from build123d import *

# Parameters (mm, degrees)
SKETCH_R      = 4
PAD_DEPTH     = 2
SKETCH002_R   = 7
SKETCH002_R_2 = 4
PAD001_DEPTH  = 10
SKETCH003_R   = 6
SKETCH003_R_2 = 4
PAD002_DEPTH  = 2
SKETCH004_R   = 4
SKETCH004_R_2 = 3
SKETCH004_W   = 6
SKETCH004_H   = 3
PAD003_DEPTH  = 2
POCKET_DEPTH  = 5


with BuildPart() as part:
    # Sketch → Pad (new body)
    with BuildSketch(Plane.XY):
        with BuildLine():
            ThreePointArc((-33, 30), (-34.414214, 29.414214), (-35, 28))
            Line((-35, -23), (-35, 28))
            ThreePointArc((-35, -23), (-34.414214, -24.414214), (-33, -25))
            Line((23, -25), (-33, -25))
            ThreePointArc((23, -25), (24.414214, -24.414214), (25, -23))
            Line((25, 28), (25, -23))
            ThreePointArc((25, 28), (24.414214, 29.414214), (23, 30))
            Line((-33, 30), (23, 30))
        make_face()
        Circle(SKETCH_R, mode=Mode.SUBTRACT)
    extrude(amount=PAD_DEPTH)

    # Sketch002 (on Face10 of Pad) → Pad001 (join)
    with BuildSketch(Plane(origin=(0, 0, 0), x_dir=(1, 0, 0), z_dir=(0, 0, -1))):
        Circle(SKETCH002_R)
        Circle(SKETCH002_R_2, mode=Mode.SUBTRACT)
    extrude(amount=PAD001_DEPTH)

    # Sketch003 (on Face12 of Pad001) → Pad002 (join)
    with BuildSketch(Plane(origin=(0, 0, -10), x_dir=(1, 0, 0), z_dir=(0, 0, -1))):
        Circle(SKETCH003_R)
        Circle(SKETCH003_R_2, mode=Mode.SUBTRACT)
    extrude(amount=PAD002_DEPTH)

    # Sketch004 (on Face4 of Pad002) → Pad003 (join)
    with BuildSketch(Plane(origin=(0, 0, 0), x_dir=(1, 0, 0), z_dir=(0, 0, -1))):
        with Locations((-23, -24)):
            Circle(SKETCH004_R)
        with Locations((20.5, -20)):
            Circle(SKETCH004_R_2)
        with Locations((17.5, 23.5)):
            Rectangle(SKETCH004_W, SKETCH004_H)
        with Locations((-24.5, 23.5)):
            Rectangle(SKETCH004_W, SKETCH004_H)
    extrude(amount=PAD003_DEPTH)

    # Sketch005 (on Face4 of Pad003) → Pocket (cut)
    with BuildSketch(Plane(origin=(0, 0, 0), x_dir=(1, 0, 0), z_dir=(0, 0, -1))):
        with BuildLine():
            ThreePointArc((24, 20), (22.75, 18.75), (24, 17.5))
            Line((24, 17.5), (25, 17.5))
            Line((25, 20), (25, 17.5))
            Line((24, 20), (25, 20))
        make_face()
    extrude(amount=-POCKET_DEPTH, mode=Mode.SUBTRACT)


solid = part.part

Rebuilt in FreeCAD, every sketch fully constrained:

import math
import FreeCAD as App
import Part
import Sketcher

V = App.Vector
Q = App.Units.Quantity

doc = App.newDocument("Part")
body = doc.addObject("PartDesign::Body", "Body")

sketch1 = body.newObject("Sketcher::SketchObject", "Sketch")
sketch1.AttachmentSupport = (doc.getObject("XY_Plane"), [""])
sketch1.MapMode = "FlatFace"
sketch1.addGeometry([
    Part.ArcOfCircle(Part.Circle(V(-33, 28, 0), V(0, 0, 1), 2), math.radians(90), math.radians(180)),
    Part.LineSegment(V(-35, 28, 0), V(-35, -23, 0)),
    Part.ArcOfCircle(Part.Circle(V(-33, -23, 0), V(0, 0, 1), 2), math.radians(180), math.radians(270)),
    Part.LineSegment(V(-33, -25, 0), V(23, -25, 0)),
    Part.ArcOfCircle(Part.Circle(V(23, -23, 0), V(0, 0, 1), 2), math.radians(-90), math.radians(0)),
    Part.LineSegment(V(25, -23, 0), V(25, 28, 0)),
    Part.ArcOfCircle(Part.Circle(V(23, 28, 0), V(0, 0, 1), 2), math.radians(0), math.radians(90)),
    Part.LineSegment(V(23, 30, 0), V(-33, 30, 0)),
    Part.Circle(V(0, 0, 0), V(0, 0, 1), 4),
], False)
sketch1.addConstraint([
    Sketcher.Constraint("Tangent", 0, 2, 1, 1),
    Sketcher.Constraint("Tangent", 1, 2, 2, 1),
    Sketcher.Constraint("Tangent", 2, 2, 3, 1),
    Sketcher.Constraint("Tangent", 3, 2, 4, 1),
    Sketcher.Constraint("Tangent", 4, 2, 5, 1),
    Sketcher.Constraint("Tangent", 5, 2, 6, 1),
    Sketcher.Constraint("Tangent", 6, 2, 7, 1),
    Sketcher.Constraint("Tangent", 7, 2, 0, 1),
    Sketcher.Constraint("Vertical", 1),
    Sketcher.Constraint("Horizontal", 3),
    Sketcher.Constraint("Vertical", 5),
    Sketcher.Constraint("Horizontal", 7),
    Sketcher.Constraint("Coincident", 8, 3, -1, 1),
    Sketcher.Constraint("Equal", 0, 2),
    Sketcher.Constraint("Equal", 2, 4),
    Sketcher.Constraint("Equal", 4, 6),
    Sketcher.Constraint("Diameter", 8, Q("8 mm")),
    Sketcher.Constraint("Radius", 0, Q("1.999999 mm")),
    Sketcher.Constraint("DistanceX", 3, 1, 3, 2, Q("56 mm")),
    Sketcher.Constraint("DistanceY", 1, 2, 1, 1, Q("51 mm")),
    Sketcher.Constraint("DistanceX", 0, 3, -1, 1, Q("33.000001 mm")),
    Sketcher.Constraint("DistanceY", -1, 1, 0, 3, Q("28.000001 mm")),
])
pad1 = body.newObject("PartDesign::Pad", "Pad")
pad1.Profile = sketch1
pad1.Length = 2

sketch2 = body.newObject("Sketcher::SketchObject", "Sketch001")
sketch2.AttachmentSupport = (doc.getObject("XY_Plane"), [""])
sketch2.MapMode = "FlatFace"
sketch2.addGeometry([
    Part.Circle(V(0, 0, 0), V(0, 0, 1), 7),
    Part.Circle(V(0, 0, 0), V(0, 0, 1), 4),
], False)
sketch2.addConstraint([
    Sketcher.Constraint("Coincident", 0, 3, -1, 1),
    Sketcher.Constraint("Coincident", 1, 3, -1, 1),
    Sketcher.Constraint("Diameter", 0, Q("14 mm")),
    Sketcher.Constraint("Diameter", 1, Q("8 mm")),
])
pad2 = body.newObject("PartDesign::Pad", "Pad001")
pad2.Profile = sketch2
pad2.Length = 10
pad2.Reversed = True

sketch3 = body.newObject("Sketcher::SketchObject", "Sketch002")
sketch3.AttachmentSupport = (doc.getObject("XY_Plane"), [""])
sketch3.MapMode = "FlatFace"
sketch3.AttachmentOffset = App.Placement(V(0, 0, -10), App.Rotation())
sketch3.addGeometry([
    Part.Circle(V(0, 0, 0), V(0, 0, 1), 6),
    Part.Circle(V(0, 0, 0), V(0, 0, 1), 4),
], False)
sketch3.addConstraint([
    Sketcher.Constraint("Coincident", 0, 3, -1, 1),
    Sketcher.Constraint("Coincident", 1, 3, -1, 1),
    Sketcher.Constraint("Diameter", 0, Q("12 mm")),
    Sketcher.Constraint("Diameter", 1, Q("8 mm")),
])
pad3 = body.newObject("PartDesign::Pad", "Pad002")
pad3.Profile = sketch3
pad3.Length = 2
pad3.Reversed = True

sketch4 = body.newObject("Sketcher::SketchObject", "Sketch003")
sketch4.AttachmentSupport = (doc.getObject("XY_Plane"), [""])
sketch4.MapMode = "FlatFace"
sketch4.addGeometry([
    Part.Circle(V(-23, 24, 0), V(0, 0, 1), 4),
    Part.Circle(V(20.5, 20, 0), V(0, 0, 1), 3),
    Part.LineSegment(V(14.5, -25, 0), V(14.5, -22, 0)),
    Part.LineSegment(V(14.5, -22, 0), V(20.5, -22, 0)),
    Part.LineSegment(V(20.5, -22, 0), V(20.5, -25, 0)),
    Part.LineSegment(V(20.5, -25, 0), V(14.5, -25, 0)),
    Part.LineSegment(V(-27.5, -25, 0), V(-27.5, -22, 0)),
    Part.LineSegment(V(-27.5, -22, 0), V(-21.5, -22, 0)),
    Part.LineSegment(V(-21.5, -22, 0), V(-21.5, -25, 0)),
    Part.LineSegment(V(-21.5, -25, 0), V(-27.5, -25, 0)),
], False)
sketch4.addConstraint([
    Sketcher.Constraint("Coincident", 2, 2, 3, 1),
    Sketcher.Constraint("Coincident", 3, 2, 4, 1),
    Sketcher.Constraint("Coincident", 4, 2, 5, 1),
    Sketcher.Constraint("Coincident", 5, 2, 2, 1),
    Sketcher.Constraint("Coincident", 6, 2, 7, 1),
    Sketcher.Constraint("Coincident", 7, 2, 8, 1),
    Sketcher.Constraint("Coincident", 8, 2, 9, 1),
    Sketcher.Constraint("Coincident", 9, 2, 6, 1),
    Sketcher.Constraint("Vertical", 2),
    Sketcher.Constraint("Horizontal", 3),
    Sketcher.Constraint("Vertical", 4),
    Sketcher.Constraint("Horizontal", 5),
    Sketcher.Constraint("Vertical", 6),
    Sketcher.Constraint("Horizontal", 7),
    Sketcher.Constraint("Vertical", 8),
    Sketcher.Constraint("Horizontal", 9),
    Sketcher.Constraint("Horizontal", 3, 2, 6, 2),
    Sketcher.Constraint("Horizontal", 5, 2, 8, 2),
    Sketcher.Constraint("Vertical", 1, 3, 3, 2),
    Sketcher.Constraint("Equal", 5, 7),
    Sketcher.Constraint("Diameter", 0, Q("8 mm")),
    Sketcher.Constraint("Diameter", 1, Q("6 mm")),
    Sketcher.Constraint("DistanceX", 3, 1, 3, 2, Q("6 mm")),
    Sketcher.Constraint("DistanceY", 2, 1, 2, 2, Q("3 mm")),
    Sketcher.Constraint("DistanceX", 0, 3, -1, 1, Q("23 mm")),
    Sketcher.Constraint("DistanceY", -1, 1, 0, 3, Q("24 mm")),
    Sketcher.Constraint("DistanceY", -1, 1, 1, 3, Q("20 mm")),
    Sketcher.Constraint("DistanceY", 2, 2, -1, 1, Q("22 mm")),
    Sketcher.Constraint("DistanceX", 6, 2, 2, 2, Q("42 mm")),
    Sketcher.Constraint("DistanceX", -1, 1, 1, 3, Q("20.5 mm")),
])
pad4 = body.newObject("PartDesign::Pad", "Pad003")
pad4.Profile = sketch4
pad4.Length = 2
pad4.Reversed = True

sketch5 = body.newObject("Sketcher::SketchObject", "Sketch004")
sketch5.AttachmentSupport = (doc.getObject("XY_Plane"), [""])
sketch5.MapMode = "FlatFace"
sketch5.addGeometry([
    Part.ArcOfCircle(Part.Circle(V(24, -18.8, 0), V(0, 0, 1), 1.2), math.radians(90), math.radians(270)),
    Part.LineSegment(V(24, -17.5, 0), V(25, -17.5, 0)),
    Part.LineSegment(V(25, -17.5, 0), V(25, -20, 0)),
    Part.LineSegment(V(25, -20, 0), V(24, -20, 0)),
], False)
sketch5.addConstraint([
    Sketcher.Constraint("Tangent", 0, 1, 1, 1),
    Sketcher.Constraint("Coincident", 1, 2, 2, 1),
    Sketcher.Constraint("Coincident", 2, 2, 3, 1),
    Sketcher.Constraint("Tangent", 3, 2, 0, 2),
    Sketcher.Constraint("Horizontal", 1),
    Sketcher.Constraint("Vertical", 2),
    Sketcher.Constraint("Horizontal", 3),
    Sketcher.Constraint("DistanceX", 1, 1, 1, 2, Q("1 mm")),
    Sketcher.Constraint("Radius", 0, Q("1.25 mm")),
    Sketcher.Constraint("DistanceX", -1, 1, 0, 3, Q("24 mm")),
    Sketcher.Constraint("DistanceY", 2, 2, -1, 1, Q("20 mm")),
])
pocket1 = body.newObject("PartDesign::Pocket", "Pocket")
pocket1.Profile = sketch5
pocket1.Length = 5
pocket1.Reversed = True

doc.recompute()
